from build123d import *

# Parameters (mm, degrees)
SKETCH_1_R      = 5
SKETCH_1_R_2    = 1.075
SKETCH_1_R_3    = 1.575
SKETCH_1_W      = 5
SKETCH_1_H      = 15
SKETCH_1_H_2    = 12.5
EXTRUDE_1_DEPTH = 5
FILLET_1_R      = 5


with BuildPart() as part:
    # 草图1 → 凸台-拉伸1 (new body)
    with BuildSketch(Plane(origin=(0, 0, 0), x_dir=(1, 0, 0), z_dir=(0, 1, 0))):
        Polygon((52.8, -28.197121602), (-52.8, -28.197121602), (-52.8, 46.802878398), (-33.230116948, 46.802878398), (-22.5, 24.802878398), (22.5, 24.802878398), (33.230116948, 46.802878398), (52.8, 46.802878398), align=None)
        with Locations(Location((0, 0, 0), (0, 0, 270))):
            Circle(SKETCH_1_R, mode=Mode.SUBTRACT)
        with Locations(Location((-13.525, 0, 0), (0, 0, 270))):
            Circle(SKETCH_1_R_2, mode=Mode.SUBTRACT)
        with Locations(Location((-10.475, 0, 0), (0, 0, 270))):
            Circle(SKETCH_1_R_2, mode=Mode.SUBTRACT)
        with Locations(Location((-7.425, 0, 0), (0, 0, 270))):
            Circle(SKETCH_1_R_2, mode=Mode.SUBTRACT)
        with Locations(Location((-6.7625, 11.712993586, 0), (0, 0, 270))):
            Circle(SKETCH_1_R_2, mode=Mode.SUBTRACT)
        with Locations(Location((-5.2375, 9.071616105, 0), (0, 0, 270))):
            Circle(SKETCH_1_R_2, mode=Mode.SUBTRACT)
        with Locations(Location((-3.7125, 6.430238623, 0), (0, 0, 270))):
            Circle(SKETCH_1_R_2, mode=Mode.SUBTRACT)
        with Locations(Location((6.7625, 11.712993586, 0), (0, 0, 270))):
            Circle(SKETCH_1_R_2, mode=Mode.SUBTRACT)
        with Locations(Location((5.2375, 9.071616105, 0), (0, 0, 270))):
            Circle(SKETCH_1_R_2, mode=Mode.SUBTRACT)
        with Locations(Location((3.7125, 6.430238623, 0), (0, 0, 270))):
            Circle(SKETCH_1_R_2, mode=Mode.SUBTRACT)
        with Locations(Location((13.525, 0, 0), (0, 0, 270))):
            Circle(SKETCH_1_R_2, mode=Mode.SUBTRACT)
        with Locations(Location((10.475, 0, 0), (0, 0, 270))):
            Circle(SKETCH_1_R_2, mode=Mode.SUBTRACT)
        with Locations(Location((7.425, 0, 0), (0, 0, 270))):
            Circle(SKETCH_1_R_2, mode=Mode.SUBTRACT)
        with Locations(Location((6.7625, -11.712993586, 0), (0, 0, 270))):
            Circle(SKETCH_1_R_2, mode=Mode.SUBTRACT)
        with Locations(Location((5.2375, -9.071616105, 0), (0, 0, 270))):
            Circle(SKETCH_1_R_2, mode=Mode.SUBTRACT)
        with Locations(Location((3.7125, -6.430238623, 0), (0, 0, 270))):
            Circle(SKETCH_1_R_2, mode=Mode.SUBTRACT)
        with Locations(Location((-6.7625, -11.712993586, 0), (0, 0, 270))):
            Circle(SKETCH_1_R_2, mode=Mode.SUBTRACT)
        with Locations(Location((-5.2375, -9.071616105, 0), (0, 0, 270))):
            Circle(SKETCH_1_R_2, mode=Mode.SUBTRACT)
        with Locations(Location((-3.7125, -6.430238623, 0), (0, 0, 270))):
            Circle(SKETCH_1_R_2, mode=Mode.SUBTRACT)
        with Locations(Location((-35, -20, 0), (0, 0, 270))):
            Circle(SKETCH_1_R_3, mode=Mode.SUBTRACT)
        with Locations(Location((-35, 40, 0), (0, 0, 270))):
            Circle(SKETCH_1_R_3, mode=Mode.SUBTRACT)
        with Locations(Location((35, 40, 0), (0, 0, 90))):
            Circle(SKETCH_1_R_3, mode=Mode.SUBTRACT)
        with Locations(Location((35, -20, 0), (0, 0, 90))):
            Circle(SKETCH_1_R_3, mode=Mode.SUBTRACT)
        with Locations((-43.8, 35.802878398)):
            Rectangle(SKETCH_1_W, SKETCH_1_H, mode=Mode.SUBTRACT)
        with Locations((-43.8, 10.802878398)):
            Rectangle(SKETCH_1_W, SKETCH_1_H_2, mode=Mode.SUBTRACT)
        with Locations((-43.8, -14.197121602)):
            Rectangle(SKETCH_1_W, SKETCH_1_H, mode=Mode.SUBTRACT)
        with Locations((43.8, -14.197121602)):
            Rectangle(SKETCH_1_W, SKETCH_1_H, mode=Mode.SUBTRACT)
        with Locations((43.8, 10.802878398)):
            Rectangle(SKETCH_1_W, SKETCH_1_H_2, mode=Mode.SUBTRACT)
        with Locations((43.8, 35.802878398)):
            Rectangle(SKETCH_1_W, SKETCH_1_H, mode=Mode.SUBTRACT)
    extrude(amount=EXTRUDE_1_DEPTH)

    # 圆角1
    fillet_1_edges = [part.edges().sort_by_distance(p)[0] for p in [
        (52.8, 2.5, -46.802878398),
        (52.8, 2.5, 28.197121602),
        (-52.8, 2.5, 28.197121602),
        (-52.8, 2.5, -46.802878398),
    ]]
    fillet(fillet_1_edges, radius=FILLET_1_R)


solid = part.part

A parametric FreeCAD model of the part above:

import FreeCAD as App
import Part
import Sketcher
Q = App.Units.Quantity


def edges_at(feature, points):
    """Names of the edges that pass closest to the given points."""
    edges = feature.Shape.Edges
    near = lambda p: min(range(len(edges)), key=lambda i: edges[i].distToShape(Part.Vertex(*p))[0])
    return sorted({f"Edge{near(p) + 1}" for p in points})

doc = App.newDocument("Part")
body = doc.addObject("PartDesign::Body", "Body")

# Sketch on XZ plane
sketch1 = body.newObject("Sketcher::SketchObject", "Sketch")
sketch1.AttachmentSupport = (doc.getObject("XZ_Plane"), [""])
sketch1.MapMode = "FlatFace"
sketch1.addGeometry([
    Part.LineSegment(App.Vector(-52.8, 28.2, 0), App.Vector(52.8, 28.2, 0)),  # 0
    Part.LineSegment(App.Vector(52.8, 28.2, 0), App.Vector(52.8, -46.8, 0)),  # 1
    Part.LineSegment(App.Vector(52.8, -46.8, 0), App.Vector(33.2, -46.8, 0)),  # 2
    Part.LineSegment(App.Vector(33.2, -46.8, 0), App.Vector(22.5, -24.8, 0)),  # 3
    Part.LineSegment(App.Vector(22.5, -24.8, 0), App.Vector(-22.5, -24.8, 0)),  # 4
    Part.LineSegment(App.Vector(-22.5, -24.8, 0), App.Vector(-33.2, -46.8, 0)),  # 5
    Part.LineSegment(App.Vector(-33.2, -46.8, 0), App.Vector(-52.8, -46.8, 0)),  # 6
    Part.LineSegment(App.Vector(-52.8, -46.8, 0), App.Vector(-52.8, 28.2, 0)),  # 7
    Part.Circle(App.Vector(35, 20, 0), App.Vector(0, 0, 1), 1.6),  # 8
    Part.LineSegment(App.Vector(41.3, 21.7, 0), App.Vector(41.3, 6.7, 0)),  # 9
    Part.LineSegment(App.Vector(41.3, 6.7, 0), App.Vector(46.3, 6.7, 0)),  # 10
    Part.LineSegment(App.Vector(46.3, 6.7, 0), App.Vector(46.3, 21.7, 0)),  # 11
    Part.LineSegment(App.Vector(46.3, 21.7, 0), App.Vector(41.3, 21.7, 0)),  # 12
    Part.Circle(App.Vector(6.8, 11.7, 0), App.Vector(0, 0, 1), 1.1),  # 13
    Part.Circle(App.Vector(5.2, 9.1, 0), App.Vector(0, 0, 1), 1.1),  # 14
    Part.Circle(App.Vector(3.7, 6.4, 0), App.Vector(0, 0, 1), 1.1),  # 15
    Part.Circle(App.Vector(13.5, 0, 0), App.Vector(0, 0, 1), 1.1),  # 16
    Part.Circle(App.Vector(10.5, 0, 0), App.Vector(0, 0, 1), 1.1),  # 17
    Part.Circle(App.Vector(7.4, 0, 0), App.Vector(0, 0, 1), 1.1),  # 18
    Part.Circle(App.Vector(3.7, -6.4, 0), App.Vector(0, 0, 1), 1.1),  # 19
    Part.Circle(App.Vector(5.2, -9.1, 0), App.Vector(0, 0, 1), 1.1),  # 20
    Part.Circle(App.Vector(-6.8, 11.7, 0), App.Vector(0, 0, 1), 1.1),  # 21
    Part.Circle(App.Vector(-5.2, 9.1, 0), App.Vector(0, 0, 1), 1.1),  # 22
    Part.Circle(App.Vector(-3.7, 6.4, 0), App.Vector(0, 0, 1), 1.1),  # 23
    Part.Circle(App.Vector(-35, 20, 0), App.Vector(0, 0, 1), 1.6),  # 24
    Part.LineSegment(App.Vector(-46.3, 21.7, 0), App.Vector(-46.3, 6.7, 0)),  # 25
    Part.LineSegment(App.Vector(-46.3, 6.7, 0), App.Vector(-41.3, 6.7, 0)),  # 26
    Part.LineSegment(App.Vector(-41.3, 6.7, 0), App.Vector(-41.3, 21.7, 0)),  # 27
    Part.LineSegment(App.Vector(-41.3, 21.7, 0), App.Vector(-46.3, 21.7, 0)),  # 28
    Part.Circle(App.Vector(0, 0, 0), App.Vector(0, 0, 1), 5),  # 29
    Part.Circle(App.Vector(-7.4, 0, 0), App.Vector(0, 0, 1), 1.1),  # 30
    Part.Circle(App.Vector(-10.5, 0, 0), App.Vector(0, 0, 1), 1.1),  # 31
    Part.Circle(App.Vector(-13.5, 0, 0), App.Vector(0, 0, 1), 1.1),  # 32
    Part.Circle(App.Vector(-3.7, -6.4, 0), App.Vector(0, 0, 1), 1.1),  # 33
    Part.Circle(App.Vector(-5.2, -9.1, 0), App.Vector(0, 0, 1), 1.1),  # 34
    Part.LineSegment(App.Vector(41.3, -4.6, 0), App.Vector(41.3, -17.1, 0)),  # 35
    Part.LineSegment(App.Vector(41.3, -17.1, 0), App.Vector(46.3, -17.1, 0)),  # 36
    Part.LineSegment(App.Vector(46.3, -17.1, 0), App.Vector(46.3, -4.6, 0)),  # 37
    Part.LineSegment(App.Vector(46.3, -4.6, 0), App.Vector(41.3, -4.6, 0)),  # 38
    Part.Circle(App.Vector(6.8, -11.7, 0), App.Vector(0, 0, 1), 1.1),  # 39
    Part.LineSegment(App.Vector(41.3, -28.3, 0), App.Vector(41.3, -43.3, 0)),  # 40
    Part.LineSegment(App.Vector(41.3, -43.3, 0), App.Vector(46.3, -43.3, 0)),  # 41
    Part.LineSegment(App.Vector(46.3, -43.3, 0), App.Vector(46.3, -28.3, 0)),  # 42
    Part.LineSegment(App.Vector(46.3, -28.3, 0), App.Vector(41.3, -28.3, 0)),  # 43
    Part.Circle(App.Vector(35, -40, 0), App.Vector(0, 0, 1), 1.6),  # 44
    Part.Circle(App.Vector(-6.8, -11.7, 0), App.Vector(0, 0, 1), 1.1),  # 45
    Part.LineSegment(App.Vector(-46.3, -4.6, 0), App.Vector(-46.3, -17.1, 0)),  # 46
    Part.LineSegment(App.Vector(-46.3, -17.1, 0), App.Vector(-41.3, -17.1, 0)),  # 47
    Part.LineSegment(App.Vector(-41.3, -17.1, 0), App.Vector(-41.3, -4.6, 0)),  # 48
    Part.LineSegment(App.Vector(-41.3, -4.6, 0), App.Vector(-46.3, -4.6, 0)),  # 49
    Part.LineSegment(App.Vector(-46.3, -28.3, 0), App.Vector(-46.3, -43.3, 0)),  # 50
    Part.LineSegment(App.Vector(-46.3, -43.3, 0), App.Vector(-41.3, -43.3, 0)),  # 51
    Part.LineSegment(App.Vector(-41.3, -43.3, 0), App.Vector(-41.3, -28.3, 0)),  # 52
    Part.LineSegment(App.Vector(-41.3, -28.3, 0), App.Vector(-46.3, -28.3, 0)),  # 53
    Part.Circle(App.Vector(-35, -40, 0), App.Vector(0, 0, 1), 1.6),  # 54
], False)
sketch1.addConstraint([
    Sketcher.Constraint("Coincident", 0, 2, 1, 1),
    Sketcher.Constraint("Coincident", 1, 2, 2, 1),
    Sketcher.Constraint("Coincident", 2, 2, 3, 1),
    Sketcher.Constraint("Coincident", 3, 2, 4, 1),
    Sketcher.Constraint("Coincident", 4, 2, 5, 1),
    Sketcher.Constraint("Coincident", 5, 2, 6, 1),
    Sketcher.Constraint("Coincident", 6, 2, 7, 1),
    Sketcher.Constraint("Coincident", 7, 2, 0, 1),
    Sketcher.Constraint("Coincident", 9, 2, 10, 1),
    Sketcher.Constraint("Coincident", 10, 2, 11, 1),
    Sketcher.Constraint("Coincident", 11, 2, 12, 1),
    Sketcher.Constraint("Coincident", 12, 2, 9, 1),
    Sketcher.Constraint("Coincident", 25, 2, 26, 1),
    Sketcher.Constraint("Coincident", 26, 2, 27, 1),
    Sketcher.Constraint("Coincident", 27, 2, 28, 1),
    Sketcher.Constraint("Coincident", 28, 2, 25, 1),
    Sketcher.Constraint("Coincident", 35, 2, 36, 1),
    Sketcher.Constraint("Coincident", 36, 2, 37, 1),
    Sketcher.Constraint("Coincident", 37, 2, 38, 1),
    Sketcher.Constraint("Coincident", 38, 2, 35, 1),
    Sketcher.Constraint("Coincident", 40, 2, 41, 1),
    Sketcher.Constraint("Coincident", 41, 2, 42, 1),
    Sketcher.Constraint("Coincident", 42, 2, 43, 1),
    Sketcher.Constraint("Coincident", 43, 2, 40, 1),
    Sketcher.Constraint("Coincident", 46, 2, 47, 1),
    Sketcher.Constraint("Coincident", 47, 2, 48, 1),
    Sketcher.Constraint("Coincident", 48, 2, 49, 1),
    Sketcher.Constraint("Coincident", 49, 2, 46, 1),
    Sketcher.Constraint("Coincident", 50, 2, 51, 1),
    Sketcher.Constraint("Coincident", 51, 2, 52, 1),
    Sketcher.Constraint("Coincident", 52, 2, 53, 1),
    Sketcher.Constraint("Coincident", 53, 2, 50, 1),
    Sketcher.Constraint("Horizontal", 0),
    Sketcher.Constraint("Vertical", 1),
    Sketcher.Constraint("Horizontal", 2),
    Sketcher.Constraint("Horizontal", 4),
    Sketcher.Constraint("Horizontal", 6),
    Sketcher.Constraint("Vertical", 7),
    Sketcher.Constraint("Vertical", 9),
    Sketcher.Constraint("Horizontal", 10),
    Sketcher.Constraint("Vertical", 11),
    Sketcher.Constraint("Horizontal", 12),
    Sketcher.Constraint("Vertical", 25),
    Sketcher.Constraint("Horizontal", 26),
    Sketcher.Constraint("Vertical", 27),
    Sketcher.Constraint("Horizontal", 28),
    Sketcher.Constraint("Vertical", 35),
    Sketcher.Constraint("Horizontal", 36),
    Sketcher.Constraint("Vertical", 37),
    Sketcher.Constraint("Horizontal", 38),
    Sketcher.Constraint("Vertical", 40),
    Sketcher.Constraint("Horizontal", 41),
    Sketcher.Constraint("Vertical", 42),
    Sketcher.Constraint("Horizontal", 43),
    Sketcher.Constraint("Vertical", 46),
    Sketcher.Constraint("Horizontal", 47),
    Sketcher.Constraint("Vertical", 48),
    Sketcher.Constraint("Horizontal", 49),
    Sketcher.Constraint("Vertical", 50),
    Sketcher.Constraint("Horizontal", 51),
    Sketcher.Constraint("Vertical", 52),
    Sketcher.Constraint("Horizontal", 53),
    Sketcher.Constraint("Coincident", 29, 3, -1, 1),
    Sketcher.Constraint("Equal", 13, 14),
    Sketcher.Constraint("Equal", 14, 15),
    Sketcher.Constraint("Equal", 15, 16),
    Sketcher.Constraint("Equal", 16, 17),
    Sketcher.Constraint("Equal", 17, 18),
    Sketcher.Constraint("Equal", 18, 19),
    Sketcher.Constraint("Equal", 19, 20),
    Sketcher.Constraint("Equal", 20, 21),
    Sketcher.Constraint("Equal", 21, 22),
    Sketcher.Constraint("Equal", 22, 23),
    Sketcher.Constraint("Equal", 8, 24),
    Sketcher.Constraint("Equal", 23, 30),
    Sketcher.Constraint("Equal", 30, 31),
    Sketcher.Constraint("Equal", 31, 32),
    Sketcher.Constraint("Equal", 32, 33),
    Sketcher.Constraint("Equal", 33, 34),
    Sketcher.Constraint("Equal", 34, 39),
    Sketcher.Constraint("Equal", 24, 44),
    Sketcher.Constraint("Equal", 39, 45),
    Sketcher.Constraint("Equal", 44, 54),
    Sketcher.Constraint("Symmetric", 20, 3, 22, 3, -1, 1),
    Sketcher.Constraint("Symmetric", 19, 3, 23, 3, -1, 1),
    Sketcher.Constraint("Symmetric", 18, 3, 30, 3, -1, 1),
    Sketcher.Constraint("Symmetric", 17, 3, 31, 3, -1, 1),
    Sketcher.Constraint("Symmetric", 16, 3, 32, 3, -1, 1),
    Sketcher.Constraint("Symmetric", 15, 3, 33, 3, -1, 1),
    Sketcher.Constraint("Symmetric", 14, 3, 34, 3, -1, 1),
    Sketcher.Constraint("Symmetric", 21, 3, 39, 3, -1, 1),
    Sketcher.Constraint("Symmetric", 13, 3, 45, 3, -1, 1),
    Sketcher.Constraint("Symmetric", 13, 3, 21, 3, -2),
    Sketcher.Constraint("Symmetric", 14, 3, 22, 3, -2),
    Sketcher.Constraint("Symmetric", 15, 3, 23, 3, -2),
    Sketcher.Constraint("Symmetric", 8, 3, 24, 3, -2),
    Sketcher.Constraint("Symmetric", 44, 3, 54, 3, -2),
    Sketcher.Constraint("Symmetric", 2, 2, 5, 2, -2),
    Sketcher.Constraint("Symmetric", 10, 2, 25, 2, -2),
    Sketcher.Constraint("Symmetric", 12, 2, 27, 2, -2),
    Sketcher.Constraint("Symmetric", 36, 2, 46, 2, -2),
    Sketcher.Constraint("Symmetric", 38, 2, 48, 2, -2),
    Sketcher.Constraint("Symmetric", 41, 2, 50, 2, -2),
    Sketcher.Constraint("Symmetric", 43, 2, 52, 2, -2),
    Sketcher.Constraint("PointOnObject", 16, 3, -1),
    Sketcher.Constraint("PointOnObject", 17, 3, -1),
    Sketcher.Constraint("PointOnObject", 18, 3, -1),
    Sketcher.Constraint("Vertical", 8, 3, 44, 3),
    Sketcher.Constraint("Vertical", 12, 2, 35, 2),
    Sketcher.Constraint("Vertical", 11, 2, 36, 2),
    Sketcher.Constraint("Vertical", 38, 2, 40, 2),
    Sketcher.Constraint("Vertical", 37, 2, 41, 2),
    Sketcher.Constraint("Equal", 2, 6),
    Sketcher.Constraint("Equal", 27, 40),
    Sketcher.Constraint("Equal", 3, 5),
    Sketcher.Constraint("Diameter", 29, 10.0),
    Sketcher.Constraint("Diameter", 8, 3.15),
    Sketcher.Constraint("Diameter", 13, 2.15),
    Sketcher.Constraint("DistanceX", 4, 2, 4, 1, 45.0),
    Sketcher.Constraint("DistanceX", 10, 1, 10, 2, 5.0),
    Sketcher.Constraint("DistanceY", 1, 2, 1, 1, 75.0),
    Sketcher.Constraint("DistanceY", 9, 2, 9, 1, 15.0),
    Sketcher.Constraint("Angle", 3, Q("116 deg")),
    Sketcher.Constraint("DistanceX", 0, 1, 0, 2, 105.6),
    Sketcher.Constraint("DistanceY", 35, 2, 35, 1, 12.5),
    Sketcher.Constraint("DistanceX", -1, 1, 8, 3, 35.0),
    Sketcher.Constraint("DistanceY", -1, 1, 8, 3, 20.0),
    Sketcher.Constraint("DistanceY", 44, 3, -1, 1, 40.0),
    Sketcher.Constraint("DistanceX", 21, 3, 14, 3, 12.0),
    Sketcher.Constraint("DistanceY", 2, 2, 3, 2, 22.0),
    Sketcher.Constraint("DistanceX", -1, 1, 9, 2, 41.3),
    Sketcher.Constraint("DistanceX", 18, 3, 16, 3, 6.1),
    Sketcher.Constraint("DistanceY", 9, 2, 0, 2, 21.5),
    Sketcher.Constraint("DistanceY", 2, 2, 40, 2, 3.5),
    Sketcher.Constraint("DistanceX", 15, 3, 13, 3, 3.05),
    Sketcher.Constraint("DistanceX", 17, 3, 16, 3, 3.05),
    Sketcher.Constraint("DistanceY", 3, 2, 35, 2, 7.75),
    Sketcher.Constraint("DistanceX", -1, 1, 16, 3, 13.525),
    Sketcher.Constraint("DistanceX", 14, 3, 13, 3, 1.525),
    Sketcher.Constraint("DistanceY", -1, 1, 15, 3, 6.430239),
    Sketcher.Constraint("DistanceY", -1, 1, 0, 2, 28.197122),
    Sketcher.Constraint("DistanceY", 13, 3, 0, 2, 16.484128),
    Sketcher.Constraint("DistanceY", -1, 1, 14, 3, 9.071616),
])
pad1 = body.newObject("PartDesign::Pad", "Pad")
pad1.Profile = sketch1
pad1.Length = 5
pad1.Reversed = True
doc.recompute()

fillet = body.newObject("PartDesign::Fillet", "Fillet")
fillet.Base = (pad1, edges_at(pad1, [
    (52.8, 2.5, -46.803),
    (52.8, 2.5, 28.197),
    (-52.8, 2.5, 28.197),
    (-52.8, 2.5, -46.803),
]))
fillet.Radius = 5

doc.recompute()
